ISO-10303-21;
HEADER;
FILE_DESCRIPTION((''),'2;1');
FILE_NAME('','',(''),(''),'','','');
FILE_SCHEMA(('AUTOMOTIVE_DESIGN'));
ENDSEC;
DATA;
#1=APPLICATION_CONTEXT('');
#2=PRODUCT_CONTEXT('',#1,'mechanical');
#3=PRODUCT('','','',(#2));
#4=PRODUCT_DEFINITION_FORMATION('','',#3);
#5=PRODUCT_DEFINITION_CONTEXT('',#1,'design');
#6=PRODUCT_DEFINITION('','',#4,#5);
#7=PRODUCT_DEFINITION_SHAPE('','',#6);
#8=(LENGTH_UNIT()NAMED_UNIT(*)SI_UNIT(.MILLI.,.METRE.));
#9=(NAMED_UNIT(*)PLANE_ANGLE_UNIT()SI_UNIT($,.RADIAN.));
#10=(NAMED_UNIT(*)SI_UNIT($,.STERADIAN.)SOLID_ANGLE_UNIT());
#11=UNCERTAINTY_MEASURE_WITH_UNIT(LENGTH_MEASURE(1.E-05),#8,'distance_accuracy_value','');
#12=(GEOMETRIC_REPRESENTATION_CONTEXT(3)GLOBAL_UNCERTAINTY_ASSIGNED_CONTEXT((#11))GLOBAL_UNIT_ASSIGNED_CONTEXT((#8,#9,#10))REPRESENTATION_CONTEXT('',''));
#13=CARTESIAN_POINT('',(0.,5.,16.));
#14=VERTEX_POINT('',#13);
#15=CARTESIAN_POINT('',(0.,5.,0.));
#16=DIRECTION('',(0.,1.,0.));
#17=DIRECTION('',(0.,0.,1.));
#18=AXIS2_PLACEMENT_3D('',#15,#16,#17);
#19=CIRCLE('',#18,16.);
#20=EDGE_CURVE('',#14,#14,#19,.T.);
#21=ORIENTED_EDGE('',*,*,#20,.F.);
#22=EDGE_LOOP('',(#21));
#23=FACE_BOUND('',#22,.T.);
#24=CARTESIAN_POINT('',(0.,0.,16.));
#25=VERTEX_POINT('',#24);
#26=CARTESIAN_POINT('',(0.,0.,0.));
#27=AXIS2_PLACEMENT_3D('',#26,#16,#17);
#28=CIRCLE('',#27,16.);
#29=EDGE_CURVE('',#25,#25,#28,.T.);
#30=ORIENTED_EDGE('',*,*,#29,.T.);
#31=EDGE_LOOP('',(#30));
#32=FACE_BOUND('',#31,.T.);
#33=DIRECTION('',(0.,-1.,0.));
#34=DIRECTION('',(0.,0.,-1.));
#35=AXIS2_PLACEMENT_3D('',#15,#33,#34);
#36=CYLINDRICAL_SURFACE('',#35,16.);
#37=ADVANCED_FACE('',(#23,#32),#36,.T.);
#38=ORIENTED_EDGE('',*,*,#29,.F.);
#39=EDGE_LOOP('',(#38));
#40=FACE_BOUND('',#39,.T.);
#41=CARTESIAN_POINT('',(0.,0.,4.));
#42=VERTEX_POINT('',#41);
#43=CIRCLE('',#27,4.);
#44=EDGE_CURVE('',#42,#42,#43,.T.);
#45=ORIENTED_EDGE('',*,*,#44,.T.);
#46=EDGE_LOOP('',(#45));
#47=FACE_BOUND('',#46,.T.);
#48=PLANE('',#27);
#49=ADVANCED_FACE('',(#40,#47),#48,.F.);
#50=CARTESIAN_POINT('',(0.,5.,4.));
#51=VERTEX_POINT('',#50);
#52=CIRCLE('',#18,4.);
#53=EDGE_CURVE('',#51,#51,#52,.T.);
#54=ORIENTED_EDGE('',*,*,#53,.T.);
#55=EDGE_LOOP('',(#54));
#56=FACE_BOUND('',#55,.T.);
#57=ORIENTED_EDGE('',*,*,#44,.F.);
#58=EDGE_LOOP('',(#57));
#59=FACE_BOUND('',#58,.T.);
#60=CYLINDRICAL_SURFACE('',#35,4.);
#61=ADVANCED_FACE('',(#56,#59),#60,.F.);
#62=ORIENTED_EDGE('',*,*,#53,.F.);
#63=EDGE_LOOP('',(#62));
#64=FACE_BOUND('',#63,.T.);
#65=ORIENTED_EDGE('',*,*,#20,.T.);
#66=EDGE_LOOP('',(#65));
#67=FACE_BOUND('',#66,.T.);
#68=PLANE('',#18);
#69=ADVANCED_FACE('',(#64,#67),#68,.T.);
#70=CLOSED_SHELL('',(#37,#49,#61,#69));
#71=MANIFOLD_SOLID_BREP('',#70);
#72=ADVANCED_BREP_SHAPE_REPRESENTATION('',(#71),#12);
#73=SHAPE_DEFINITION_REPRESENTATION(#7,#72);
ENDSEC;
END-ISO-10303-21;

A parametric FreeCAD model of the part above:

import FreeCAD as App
import Part
import Sketcher
Q = App.Units.Quantity

doc = App.newDocument("Part")
body = doc.addObject("PartDesign::Body", "Body")

sketch1 = body.newObject("Sketcher::SketchObject", "Sketch")
sketch1.AttachmentSupport = (doc.getObject("XZ_Plane"), [""])
sketch1.MapMode = "FlatFace"
sketch1.addGeometry([
    Part.Circle(App.Vector(0, 0, 0), App.Vector(0, 0, 1), 16),
    Part.Circle(App.Vector(0, 0, 0), App.Vector(0, 0, 1), 4),
], False)
sketch1.addConstraint([
    Sketcher.Constraint("Coincident", 0, 3, -1, 1),
    Sketcher.Constraint("Coincident", 1, 3, -1, 1),
    Sketcher.Constraint("Diameter", 0, Q("32 mm")),
    Sketcher.Constraint("Diameter", 1, Q("8 mm")),
])
pad1 = body.newObject("PartDesign::Pad", "Pad")
pad1.Profile = sketch1
pad1.Length = 5
pad1.Reversed = True

doc.recompute()
